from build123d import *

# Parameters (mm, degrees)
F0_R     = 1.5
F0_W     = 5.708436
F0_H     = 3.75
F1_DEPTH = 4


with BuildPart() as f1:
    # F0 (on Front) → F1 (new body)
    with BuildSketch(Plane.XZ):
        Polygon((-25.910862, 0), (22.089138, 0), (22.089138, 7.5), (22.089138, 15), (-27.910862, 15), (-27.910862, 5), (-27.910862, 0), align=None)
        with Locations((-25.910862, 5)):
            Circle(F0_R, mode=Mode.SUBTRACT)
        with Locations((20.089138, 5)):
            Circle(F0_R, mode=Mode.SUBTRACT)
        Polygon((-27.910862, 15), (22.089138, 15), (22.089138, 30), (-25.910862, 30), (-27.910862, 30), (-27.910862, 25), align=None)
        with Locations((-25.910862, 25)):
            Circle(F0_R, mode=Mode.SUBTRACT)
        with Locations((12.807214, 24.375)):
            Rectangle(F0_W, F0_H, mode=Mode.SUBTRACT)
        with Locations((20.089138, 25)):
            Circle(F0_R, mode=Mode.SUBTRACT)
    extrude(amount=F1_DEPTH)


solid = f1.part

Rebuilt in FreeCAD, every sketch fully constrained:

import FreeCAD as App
import Part
import Sketcher

doc = App.newDocument("Part")
body = doc.addObject("PartDesign::Body", "Body")

# Sketch on XZ plane
sketch1 = doc.addObject("Sketcher::SketchObject", "Sketch")
body.addObject(sketch1)
sketch1.AttachmentSupport = (doc.XZ_Plane, [""])
sketch1.MapMode = "FlatFace"
sketch1.addGeometry([
    Part.LineSegment(App.Vector(22.1, 0, 0), App.Vector(22.1, 30, 0)),  # 0
    Part.LineSegment(App.Vector(22.1, 30, 0), App.Vector(-27.9, 30, 0)),  # 1
    Part.LineSegment(App.Vector(-27.9, 30, 0), App.Vector(-27.9, 0, 0)),  # 2
    Part.LineSegment(App.Vector(-27.9, 0, 0), App.Vector(22.1, 0, 0)),  # 3
    Part.Circle(App.Vector(-25.9, 5, 0), App.Vector(0, 0, 1), 1.5),  # 4
    Part.Circle(App.Vector(20.1, 5, 0), App.Vector(0, 0, 1), 1.5),  # 5
    Part.Circle(App.Vector(-25.9, 25, 0), App.Vector(0, 0, 1), 1.5),  # 6
    Part.LineSegment(App.Vector(15.7, 22.5, 0), App.Vector(10, 22.5, 0)),  # 7
    Part.LineSegment(App.Vector(10, 22.5, 0), App.Vector(10, 26.2, 0)),  # 8
    Part.LineSegment(App.Vector(10, 26.2, 0), App.Vector(15.7, 26.2, 0)),  # 9
    Part.LineSegment(App.Vector(15.7, 26.2, 0), App.Vector(15.7, 22.5, 0)),  # 10
    Part.Circle(App.Vector(20.1, 25, 0), App.Vector(0, 0, 1), 1.5),  # 11
], False)
sketch1.addConstraint([
    Sketcher.Constraint("Coincident", 0, 2, 1, 1),
    Sketcher.Constraint("Coincident", 1, 2, 2, 1),
    Sketcher.Constraint("Coincident", 2, 2, 3, 1),
    Sketcher.Constraint("Coincident", 3, 2, 0, 1),
    Sketcher.Constraint("Coincident", 7, 2, 8, 1),
    Sketcher.Constraint("Coincident", 8, 2, 9, 1),
    Sketcher.Constraint("Coincident", 9, 2, 10, 1),
    Sketcher.Constraint("Coincident", 10, 2, 7, 1),
    Sketcher.Constraint("Vertical", 0),
    Sketcher.Constraint("Horizontal", 1),
    Sketcher.Constraint("Vertical", 2),
    Sketcher.Constraint("Horizontal", 3),
    Sketcher.Constraint("Horizontal", 7),
    Sketcher.Constraint("Vertical", 8),
    Sketcher.Constraint("Horizontal", 9),
    Sketcher.Constraint("Vertical", 10),
    Sketcher.Constraint("Equal", 4, 5),
    Sketcher.Constraint("Equal", 5, 6),
    Sketcher.Constraint("Equal", 6, 11),
    Sketcher.Constraint("PointOnObject", 2, 2, -1),
    Sketcher.Constraint("Horizontal", 4, 3, 5, 3),
    Sketcher.Constraint("Horizontal", 6, 3, 11, 3),
    Sketcher.Constraint("Vertical", 4, 3, 6, 3),
    Sketcher.Constraint("Vertical", 5, 3, 11, 3),
    Sketcher.Constraint("Diameter", 4, 3.0),
    Sketcher.Constraint("DistanceX", 1, 2, 1, 1, 50.0),
    Sketcher.Constraint("DistanceY", 0, 1, 0, 2, 30.0),
    Sketcher.Constraint("DistanceY", -1, 1, 4, 3, 5.0),
    Sketcher.Constraint("DistanceY", -1, 1, 6, 3, 25.0),
    Sketcher.Constraint("DistanceX", 4, 3, 5, 3, 46.0),
    Sketcher.Constraint("DistanceX", 11, 3, 0, 2, 2.0),
    Sketcher.Constraint("DistanceY", 8, 1, 8, 2, 3.75),
    Sketcher.Constraint("DistanceY", -1, 1, 7, 2, 22.5),
    Sketcher.Constraint("DistanceX", 7, 2, 7, 1, 5.708436),
    Sketcher.Constraint("DistanceX", 7, 2, 11, 3, 10.136142),
    Sketcher.Constraint("DistanceX", 4, 3, -1, 1, 25.910862),
])
pad1 = doc.addObject("PartDesign::Pad", "Pad")
body.addObject(pad1)
pad1.Profile = sketch1
pad1.Length = 4

doc.recompute()
